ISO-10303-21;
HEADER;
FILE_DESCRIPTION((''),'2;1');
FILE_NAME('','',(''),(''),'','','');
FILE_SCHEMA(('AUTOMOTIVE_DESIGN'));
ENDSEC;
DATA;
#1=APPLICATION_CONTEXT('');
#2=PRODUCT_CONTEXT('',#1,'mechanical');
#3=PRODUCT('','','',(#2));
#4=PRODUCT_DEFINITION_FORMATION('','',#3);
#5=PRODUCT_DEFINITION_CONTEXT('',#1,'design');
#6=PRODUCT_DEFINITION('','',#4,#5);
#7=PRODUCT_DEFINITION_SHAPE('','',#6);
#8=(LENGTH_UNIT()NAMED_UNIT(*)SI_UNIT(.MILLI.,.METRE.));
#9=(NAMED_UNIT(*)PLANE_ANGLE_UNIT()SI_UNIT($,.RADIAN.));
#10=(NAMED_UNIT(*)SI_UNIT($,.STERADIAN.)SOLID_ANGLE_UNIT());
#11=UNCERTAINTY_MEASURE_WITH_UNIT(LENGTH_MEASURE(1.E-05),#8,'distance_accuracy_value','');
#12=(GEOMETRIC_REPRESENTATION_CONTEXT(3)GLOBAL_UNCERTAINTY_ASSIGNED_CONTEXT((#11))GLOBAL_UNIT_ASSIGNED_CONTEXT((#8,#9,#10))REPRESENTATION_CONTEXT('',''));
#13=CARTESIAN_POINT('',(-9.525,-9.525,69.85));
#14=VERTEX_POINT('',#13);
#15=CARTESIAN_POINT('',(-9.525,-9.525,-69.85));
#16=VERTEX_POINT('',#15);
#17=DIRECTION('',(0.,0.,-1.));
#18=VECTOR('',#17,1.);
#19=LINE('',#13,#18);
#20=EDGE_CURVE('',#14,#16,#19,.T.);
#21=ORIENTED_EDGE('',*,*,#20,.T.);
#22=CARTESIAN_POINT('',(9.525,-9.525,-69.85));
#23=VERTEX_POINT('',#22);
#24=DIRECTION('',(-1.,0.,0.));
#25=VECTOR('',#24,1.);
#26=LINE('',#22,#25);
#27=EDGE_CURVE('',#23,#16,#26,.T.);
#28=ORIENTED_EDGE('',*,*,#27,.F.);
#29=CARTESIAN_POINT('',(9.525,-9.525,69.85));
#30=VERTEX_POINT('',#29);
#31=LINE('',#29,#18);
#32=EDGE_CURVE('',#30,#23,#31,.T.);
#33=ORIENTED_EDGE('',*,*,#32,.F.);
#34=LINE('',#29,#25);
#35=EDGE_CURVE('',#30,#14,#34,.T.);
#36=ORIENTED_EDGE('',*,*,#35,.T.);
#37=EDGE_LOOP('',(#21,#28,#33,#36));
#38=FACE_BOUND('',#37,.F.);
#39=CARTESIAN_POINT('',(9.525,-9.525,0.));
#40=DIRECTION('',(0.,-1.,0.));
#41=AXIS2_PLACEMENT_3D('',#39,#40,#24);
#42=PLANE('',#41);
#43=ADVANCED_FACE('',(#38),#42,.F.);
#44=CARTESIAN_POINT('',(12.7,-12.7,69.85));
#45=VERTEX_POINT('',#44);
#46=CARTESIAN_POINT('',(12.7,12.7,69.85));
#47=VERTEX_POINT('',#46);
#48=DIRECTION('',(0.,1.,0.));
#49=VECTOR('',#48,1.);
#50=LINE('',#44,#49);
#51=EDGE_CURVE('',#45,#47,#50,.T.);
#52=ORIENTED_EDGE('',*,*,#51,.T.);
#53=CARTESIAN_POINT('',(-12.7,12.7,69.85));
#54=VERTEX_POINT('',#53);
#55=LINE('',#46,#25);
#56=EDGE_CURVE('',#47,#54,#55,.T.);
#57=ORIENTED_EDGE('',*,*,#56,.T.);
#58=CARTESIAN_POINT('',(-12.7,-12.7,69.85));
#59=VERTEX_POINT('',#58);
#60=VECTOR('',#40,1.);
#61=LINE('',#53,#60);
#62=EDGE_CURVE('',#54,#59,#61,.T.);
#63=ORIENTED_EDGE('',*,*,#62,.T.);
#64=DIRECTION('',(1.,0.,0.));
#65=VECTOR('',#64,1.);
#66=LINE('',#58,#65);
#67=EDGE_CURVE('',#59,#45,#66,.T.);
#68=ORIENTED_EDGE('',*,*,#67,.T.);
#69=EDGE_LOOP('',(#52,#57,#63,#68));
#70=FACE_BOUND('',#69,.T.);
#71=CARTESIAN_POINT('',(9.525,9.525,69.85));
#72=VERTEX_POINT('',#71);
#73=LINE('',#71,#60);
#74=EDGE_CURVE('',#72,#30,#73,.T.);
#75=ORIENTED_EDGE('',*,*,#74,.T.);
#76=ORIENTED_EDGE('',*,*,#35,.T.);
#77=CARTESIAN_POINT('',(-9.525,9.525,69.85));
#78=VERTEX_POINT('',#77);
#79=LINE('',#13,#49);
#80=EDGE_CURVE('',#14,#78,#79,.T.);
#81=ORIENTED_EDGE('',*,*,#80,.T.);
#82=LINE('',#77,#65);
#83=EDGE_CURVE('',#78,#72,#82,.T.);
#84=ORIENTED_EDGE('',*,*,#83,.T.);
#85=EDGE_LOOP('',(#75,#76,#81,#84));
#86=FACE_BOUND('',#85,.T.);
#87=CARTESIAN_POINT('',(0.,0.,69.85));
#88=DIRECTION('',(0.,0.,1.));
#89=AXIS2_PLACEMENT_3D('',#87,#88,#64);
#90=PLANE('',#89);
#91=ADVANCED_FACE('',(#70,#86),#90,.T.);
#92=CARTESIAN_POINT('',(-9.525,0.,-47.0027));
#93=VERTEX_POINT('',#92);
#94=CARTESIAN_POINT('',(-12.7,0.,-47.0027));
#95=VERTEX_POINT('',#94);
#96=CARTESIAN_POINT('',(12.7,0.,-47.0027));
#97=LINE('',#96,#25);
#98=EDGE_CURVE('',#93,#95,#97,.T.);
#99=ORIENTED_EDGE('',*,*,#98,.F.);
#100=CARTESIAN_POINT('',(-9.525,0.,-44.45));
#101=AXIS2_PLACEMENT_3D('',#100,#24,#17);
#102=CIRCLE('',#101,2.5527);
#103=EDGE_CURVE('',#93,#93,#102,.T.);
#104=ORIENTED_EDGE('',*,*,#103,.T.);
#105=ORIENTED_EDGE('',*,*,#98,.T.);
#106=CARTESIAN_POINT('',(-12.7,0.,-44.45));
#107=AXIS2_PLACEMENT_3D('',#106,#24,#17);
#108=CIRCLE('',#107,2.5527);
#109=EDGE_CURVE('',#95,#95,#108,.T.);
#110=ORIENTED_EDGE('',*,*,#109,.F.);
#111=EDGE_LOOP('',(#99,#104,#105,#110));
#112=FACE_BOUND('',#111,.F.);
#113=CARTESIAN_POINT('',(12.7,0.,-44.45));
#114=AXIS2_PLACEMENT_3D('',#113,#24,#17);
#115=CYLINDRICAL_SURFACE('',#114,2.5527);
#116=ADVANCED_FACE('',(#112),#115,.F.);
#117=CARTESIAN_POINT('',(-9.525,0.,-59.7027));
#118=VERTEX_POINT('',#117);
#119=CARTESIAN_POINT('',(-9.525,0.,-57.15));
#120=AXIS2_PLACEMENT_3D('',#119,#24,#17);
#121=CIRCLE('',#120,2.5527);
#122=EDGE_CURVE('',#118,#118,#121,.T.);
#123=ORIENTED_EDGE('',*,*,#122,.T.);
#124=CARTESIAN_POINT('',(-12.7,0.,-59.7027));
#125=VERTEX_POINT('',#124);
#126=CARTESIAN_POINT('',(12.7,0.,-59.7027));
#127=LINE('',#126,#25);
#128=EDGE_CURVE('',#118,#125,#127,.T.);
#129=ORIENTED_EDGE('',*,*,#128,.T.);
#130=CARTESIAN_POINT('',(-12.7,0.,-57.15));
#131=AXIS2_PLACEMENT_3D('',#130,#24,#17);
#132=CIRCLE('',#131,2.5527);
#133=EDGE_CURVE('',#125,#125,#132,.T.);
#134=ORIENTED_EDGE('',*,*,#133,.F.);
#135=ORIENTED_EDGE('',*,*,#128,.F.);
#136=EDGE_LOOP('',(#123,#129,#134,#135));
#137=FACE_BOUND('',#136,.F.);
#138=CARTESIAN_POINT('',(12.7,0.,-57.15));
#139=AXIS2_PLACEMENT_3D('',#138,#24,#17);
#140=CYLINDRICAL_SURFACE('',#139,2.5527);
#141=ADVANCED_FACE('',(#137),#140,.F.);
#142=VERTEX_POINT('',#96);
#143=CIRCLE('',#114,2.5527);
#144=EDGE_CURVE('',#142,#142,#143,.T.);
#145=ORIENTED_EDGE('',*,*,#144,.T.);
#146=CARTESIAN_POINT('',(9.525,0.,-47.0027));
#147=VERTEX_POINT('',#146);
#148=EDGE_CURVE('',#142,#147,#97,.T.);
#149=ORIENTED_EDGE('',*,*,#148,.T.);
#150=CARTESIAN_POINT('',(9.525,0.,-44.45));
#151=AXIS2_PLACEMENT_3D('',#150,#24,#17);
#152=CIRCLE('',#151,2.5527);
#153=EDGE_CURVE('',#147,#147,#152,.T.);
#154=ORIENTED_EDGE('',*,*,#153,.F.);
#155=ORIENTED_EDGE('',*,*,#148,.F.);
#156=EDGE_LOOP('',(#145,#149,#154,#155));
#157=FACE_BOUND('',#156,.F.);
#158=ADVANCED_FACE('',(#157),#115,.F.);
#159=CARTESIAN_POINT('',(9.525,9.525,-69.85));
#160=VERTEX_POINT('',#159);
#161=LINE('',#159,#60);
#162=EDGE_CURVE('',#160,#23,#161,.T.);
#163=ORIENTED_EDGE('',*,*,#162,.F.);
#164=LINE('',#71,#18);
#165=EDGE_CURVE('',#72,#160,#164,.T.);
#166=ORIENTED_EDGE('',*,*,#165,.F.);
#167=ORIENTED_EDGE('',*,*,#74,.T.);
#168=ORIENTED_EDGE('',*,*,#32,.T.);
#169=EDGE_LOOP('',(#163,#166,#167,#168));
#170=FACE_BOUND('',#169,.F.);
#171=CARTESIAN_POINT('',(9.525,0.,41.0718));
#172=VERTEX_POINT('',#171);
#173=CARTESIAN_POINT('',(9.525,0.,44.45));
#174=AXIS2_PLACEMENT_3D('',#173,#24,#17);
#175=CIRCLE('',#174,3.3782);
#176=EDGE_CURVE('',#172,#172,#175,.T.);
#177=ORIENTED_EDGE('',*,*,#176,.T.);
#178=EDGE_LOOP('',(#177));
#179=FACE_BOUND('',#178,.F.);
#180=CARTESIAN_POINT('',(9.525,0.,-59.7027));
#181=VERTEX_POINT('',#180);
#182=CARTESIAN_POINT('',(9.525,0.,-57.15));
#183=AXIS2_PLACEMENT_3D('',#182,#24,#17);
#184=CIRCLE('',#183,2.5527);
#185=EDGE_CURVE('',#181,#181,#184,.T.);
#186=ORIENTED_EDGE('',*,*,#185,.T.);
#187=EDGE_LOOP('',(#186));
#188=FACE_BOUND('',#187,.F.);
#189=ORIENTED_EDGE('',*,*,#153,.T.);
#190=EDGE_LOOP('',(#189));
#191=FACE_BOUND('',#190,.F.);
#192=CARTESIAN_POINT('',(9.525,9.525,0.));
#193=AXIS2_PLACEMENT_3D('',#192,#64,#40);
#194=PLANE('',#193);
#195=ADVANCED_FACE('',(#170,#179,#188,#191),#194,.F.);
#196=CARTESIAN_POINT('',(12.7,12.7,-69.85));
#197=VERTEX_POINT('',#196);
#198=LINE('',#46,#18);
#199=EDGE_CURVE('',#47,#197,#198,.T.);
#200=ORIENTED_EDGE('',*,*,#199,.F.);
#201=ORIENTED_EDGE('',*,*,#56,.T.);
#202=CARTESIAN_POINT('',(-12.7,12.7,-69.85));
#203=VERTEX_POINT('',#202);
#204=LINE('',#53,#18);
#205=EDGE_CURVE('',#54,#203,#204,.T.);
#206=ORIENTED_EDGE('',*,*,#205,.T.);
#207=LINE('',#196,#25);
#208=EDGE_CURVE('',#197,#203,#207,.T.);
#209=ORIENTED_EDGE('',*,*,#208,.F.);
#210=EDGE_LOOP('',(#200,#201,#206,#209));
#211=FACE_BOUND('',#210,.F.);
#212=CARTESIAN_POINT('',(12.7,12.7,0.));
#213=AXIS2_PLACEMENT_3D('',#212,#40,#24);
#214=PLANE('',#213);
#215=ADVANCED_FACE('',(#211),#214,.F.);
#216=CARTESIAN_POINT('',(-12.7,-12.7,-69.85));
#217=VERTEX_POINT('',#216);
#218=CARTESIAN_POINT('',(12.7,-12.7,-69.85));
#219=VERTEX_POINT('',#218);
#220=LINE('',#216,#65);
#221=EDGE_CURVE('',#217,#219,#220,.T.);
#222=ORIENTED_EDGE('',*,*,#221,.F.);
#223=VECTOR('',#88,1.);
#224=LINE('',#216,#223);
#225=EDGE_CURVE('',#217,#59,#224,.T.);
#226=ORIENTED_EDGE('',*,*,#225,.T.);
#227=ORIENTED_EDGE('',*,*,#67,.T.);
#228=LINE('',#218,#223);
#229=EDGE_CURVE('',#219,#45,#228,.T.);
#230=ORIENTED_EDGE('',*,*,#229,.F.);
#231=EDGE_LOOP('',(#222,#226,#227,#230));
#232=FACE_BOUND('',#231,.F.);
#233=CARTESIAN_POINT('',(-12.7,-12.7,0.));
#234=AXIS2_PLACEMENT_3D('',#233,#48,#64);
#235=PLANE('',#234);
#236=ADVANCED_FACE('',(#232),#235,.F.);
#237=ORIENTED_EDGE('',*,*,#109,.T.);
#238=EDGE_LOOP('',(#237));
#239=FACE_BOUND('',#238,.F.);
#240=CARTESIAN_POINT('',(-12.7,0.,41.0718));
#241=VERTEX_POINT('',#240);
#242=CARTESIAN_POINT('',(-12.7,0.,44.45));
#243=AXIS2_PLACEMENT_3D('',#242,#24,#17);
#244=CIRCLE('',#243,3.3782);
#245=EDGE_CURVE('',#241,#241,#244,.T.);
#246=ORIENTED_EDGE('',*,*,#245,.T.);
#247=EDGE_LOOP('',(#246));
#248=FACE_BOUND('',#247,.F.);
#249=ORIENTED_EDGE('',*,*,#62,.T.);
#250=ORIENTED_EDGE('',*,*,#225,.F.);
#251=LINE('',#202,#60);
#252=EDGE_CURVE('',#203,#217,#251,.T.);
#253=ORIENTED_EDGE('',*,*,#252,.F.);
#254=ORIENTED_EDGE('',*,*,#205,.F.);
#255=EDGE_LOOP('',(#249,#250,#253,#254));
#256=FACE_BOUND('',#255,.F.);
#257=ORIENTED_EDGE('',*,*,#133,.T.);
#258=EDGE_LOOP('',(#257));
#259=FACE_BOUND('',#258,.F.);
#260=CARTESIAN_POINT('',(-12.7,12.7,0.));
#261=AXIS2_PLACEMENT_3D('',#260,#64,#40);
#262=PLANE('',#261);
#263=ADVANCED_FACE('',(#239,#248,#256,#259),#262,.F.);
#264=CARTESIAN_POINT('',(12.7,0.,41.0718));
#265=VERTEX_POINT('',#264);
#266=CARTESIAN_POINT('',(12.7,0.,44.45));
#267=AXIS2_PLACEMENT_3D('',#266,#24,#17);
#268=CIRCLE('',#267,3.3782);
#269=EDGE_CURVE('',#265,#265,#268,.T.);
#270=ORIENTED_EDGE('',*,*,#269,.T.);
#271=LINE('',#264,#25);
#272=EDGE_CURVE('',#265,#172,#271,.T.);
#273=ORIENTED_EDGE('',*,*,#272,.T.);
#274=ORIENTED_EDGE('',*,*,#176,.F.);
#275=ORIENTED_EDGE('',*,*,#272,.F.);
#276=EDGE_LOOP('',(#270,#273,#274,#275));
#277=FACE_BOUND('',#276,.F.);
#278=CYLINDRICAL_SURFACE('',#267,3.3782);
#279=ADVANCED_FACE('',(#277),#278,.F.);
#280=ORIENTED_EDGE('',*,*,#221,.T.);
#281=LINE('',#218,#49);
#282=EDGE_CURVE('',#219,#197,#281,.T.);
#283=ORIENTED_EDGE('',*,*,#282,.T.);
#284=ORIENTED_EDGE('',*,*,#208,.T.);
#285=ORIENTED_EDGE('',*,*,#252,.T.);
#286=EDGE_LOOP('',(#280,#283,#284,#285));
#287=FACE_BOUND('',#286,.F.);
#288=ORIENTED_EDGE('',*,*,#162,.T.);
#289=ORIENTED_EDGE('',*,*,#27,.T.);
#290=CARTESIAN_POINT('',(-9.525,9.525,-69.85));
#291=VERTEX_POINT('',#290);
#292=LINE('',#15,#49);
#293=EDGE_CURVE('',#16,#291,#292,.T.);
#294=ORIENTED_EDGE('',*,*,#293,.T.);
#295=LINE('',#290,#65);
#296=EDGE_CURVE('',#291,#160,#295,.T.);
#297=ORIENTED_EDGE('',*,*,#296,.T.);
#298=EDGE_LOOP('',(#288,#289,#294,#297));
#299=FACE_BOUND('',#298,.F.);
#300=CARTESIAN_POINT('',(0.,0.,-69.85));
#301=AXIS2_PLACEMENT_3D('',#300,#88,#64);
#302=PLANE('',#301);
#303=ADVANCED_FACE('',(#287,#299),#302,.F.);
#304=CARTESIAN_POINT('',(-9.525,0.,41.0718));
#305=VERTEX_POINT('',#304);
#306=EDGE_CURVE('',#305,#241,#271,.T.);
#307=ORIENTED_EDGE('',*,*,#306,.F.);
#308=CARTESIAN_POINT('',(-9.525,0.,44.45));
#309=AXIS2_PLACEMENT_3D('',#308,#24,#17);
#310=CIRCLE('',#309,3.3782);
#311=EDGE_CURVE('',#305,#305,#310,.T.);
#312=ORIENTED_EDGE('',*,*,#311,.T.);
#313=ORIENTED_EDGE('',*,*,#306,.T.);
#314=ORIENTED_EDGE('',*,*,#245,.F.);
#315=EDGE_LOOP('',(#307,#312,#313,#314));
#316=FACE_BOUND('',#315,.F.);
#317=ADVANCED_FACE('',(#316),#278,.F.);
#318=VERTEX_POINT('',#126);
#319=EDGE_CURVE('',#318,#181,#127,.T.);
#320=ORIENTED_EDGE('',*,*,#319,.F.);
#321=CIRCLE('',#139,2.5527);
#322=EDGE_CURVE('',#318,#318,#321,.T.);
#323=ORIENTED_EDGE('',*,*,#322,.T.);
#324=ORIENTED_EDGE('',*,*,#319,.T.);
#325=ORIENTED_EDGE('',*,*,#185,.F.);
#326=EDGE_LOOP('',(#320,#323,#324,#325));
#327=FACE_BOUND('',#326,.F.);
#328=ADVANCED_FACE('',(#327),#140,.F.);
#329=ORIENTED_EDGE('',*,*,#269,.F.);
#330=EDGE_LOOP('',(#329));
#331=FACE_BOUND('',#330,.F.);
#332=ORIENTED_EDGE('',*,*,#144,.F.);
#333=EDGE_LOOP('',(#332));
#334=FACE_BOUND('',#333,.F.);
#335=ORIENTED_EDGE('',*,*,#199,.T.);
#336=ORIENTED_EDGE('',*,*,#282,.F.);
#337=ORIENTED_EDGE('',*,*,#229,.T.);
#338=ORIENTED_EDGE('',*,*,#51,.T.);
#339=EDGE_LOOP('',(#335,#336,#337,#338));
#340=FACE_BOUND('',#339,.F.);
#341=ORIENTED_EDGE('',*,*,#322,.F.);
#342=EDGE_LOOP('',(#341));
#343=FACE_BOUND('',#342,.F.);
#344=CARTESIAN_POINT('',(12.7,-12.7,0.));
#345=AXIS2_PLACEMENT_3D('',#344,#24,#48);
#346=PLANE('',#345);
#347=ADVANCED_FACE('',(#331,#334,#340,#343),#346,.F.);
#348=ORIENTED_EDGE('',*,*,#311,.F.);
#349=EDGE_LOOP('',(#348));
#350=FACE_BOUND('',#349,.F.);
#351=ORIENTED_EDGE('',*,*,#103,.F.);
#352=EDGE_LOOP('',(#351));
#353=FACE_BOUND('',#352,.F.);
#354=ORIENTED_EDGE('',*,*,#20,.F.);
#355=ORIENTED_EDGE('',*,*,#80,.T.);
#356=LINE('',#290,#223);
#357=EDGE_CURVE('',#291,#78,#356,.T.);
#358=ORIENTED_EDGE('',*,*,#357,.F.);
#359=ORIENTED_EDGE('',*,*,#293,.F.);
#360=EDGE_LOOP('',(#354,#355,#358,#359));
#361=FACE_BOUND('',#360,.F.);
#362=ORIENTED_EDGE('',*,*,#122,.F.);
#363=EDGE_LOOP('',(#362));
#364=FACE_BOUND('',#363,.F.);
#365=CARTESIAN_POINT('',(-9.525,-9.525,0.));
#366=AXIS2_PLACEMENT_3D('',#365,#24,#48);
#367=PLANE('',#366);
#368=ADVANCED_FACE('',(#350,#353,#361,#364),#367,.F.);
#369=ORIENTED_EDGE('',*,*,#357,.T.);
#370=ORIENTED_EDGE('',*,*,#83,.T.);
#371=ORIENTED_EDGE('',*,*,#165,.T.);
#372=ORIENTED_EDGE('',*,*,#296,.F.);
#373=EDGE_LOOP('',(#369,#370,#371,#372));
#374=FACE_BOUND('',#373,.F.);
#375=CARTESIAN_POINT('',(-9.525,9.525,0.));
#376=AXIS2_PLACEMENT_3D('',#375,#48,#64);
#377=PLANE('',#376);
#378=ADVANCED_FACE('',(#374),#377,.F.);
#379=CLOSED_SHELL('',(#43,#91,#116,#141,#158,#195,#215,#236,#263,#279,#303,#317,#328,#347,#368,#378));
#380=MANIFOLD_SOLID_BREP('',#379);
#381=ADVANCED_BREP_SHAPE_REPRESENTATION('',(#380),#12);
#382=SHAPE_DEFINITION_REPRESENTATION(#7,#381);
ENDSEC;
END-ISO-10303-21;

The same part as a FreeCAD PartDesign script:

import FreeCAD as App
import Part
import Sketcher
from FreeCAD import Vector
Q = App.Units.Quantity


def add_polygon(sketch, points):
    """Adds a closed chain of lines whose ends are joined by coincident constraints."""
    first, n = sketch.GeometryCount, len(points)
    for a, b in zip(points, points[1:] + points[:1]):
        sketch.addGeometry(Part.LineSegment(App.Vector(*a, 0), App.Vector(*b, 0)), False)
    for i in range(n):
        sketch.addConstraint(Sketcher.Constraint("Coincident", first + i, 2, first + (i + 1) % n, 1))

doc = App.newDocument("Part")
params = doc.addObject("Spreadsheet::Sheet", "Params")
for row, (alias, value) in enumerate([
    ("sketch1_width", "1 in"),
    ("pad1_length", "5.5 in"),
    ("sketch2_diameter", "0.266 in"),
    ("hole_diameter", "0.266 in"),
    ("sketch3_diameter", "0.201 in"),
    ("hole2_diameter", "0.201 in"),
], start=1):
    params.set(f"A{row}", alias)
    params.set(f"B{row}", "=" + value)
    params.setAlias(f"B{row}", alias)

body = doc.addObject("PartDesign::Body", "Body")

# Sketch on XY plane
sketch1 = doc.addObject("Sketcher::SketchObject", "Sketch")
body.addObject(sketch1)
sketch1.AttachmentSupport = (doc.XY_Plane, [""])
sketch1.MapMode = "FlatFace"
add_polygon(sketch1, [(-13, 13), (-13, -13), (13, -13), (13, 13)])  # lines 0-3
add_polygon(sketch1, [(-10, -10), (-10, 10), (10, 10), (10, -10)])  # lines 4-7
sketch1.addConstraint([
    Sketcher.Constraint("Vertical", 0),
    Sketcher.Constraint("Horizontal", 1),
    Sketcher.Constraint("Vertical", 2),
    Sketcher.Constraint("Horizontal", 3),
    Sketcher.Constraint("Vertical", 4),
    Sketcher.Constraint("Horizontal", 5),
    Sketcher.Constraint("Vertical", 6),
    Sketcher.Constraint("Horizontal", 7),
    Sketcher.Constraint("Symmetric", 0, 2, 2, 2, -1, 1),
    Sketcher.Constraint("Symmetric", 4, 2, 6, 2, -1, 1),
    Sketcher.Constraint("Equal", 3, 0),
    Sketcher.Constraint("Equal", 7, 4),
    Sketcher.Constraint("DistanceX", 1, 1, 1, 2, Q("1 in")),
    Sketcher.Constraint("DistanceX", 3, 2, 4, 2, Q("0.125 in")),
])
sketch1.setExpression("Constraints[20]", "Params.sketch1_width")
pad1 = doc.addObject("PartDesign::Pad", "Pad")
body.addObject(pad1)
pad1.Profile = sketch1
pad1.setExpression("Length", "Params.pad1_length")
pad1.Midplane = True

# Sketch on YZ plane
sketch2 = doc.addObject("Sketcher::SketchObject", "Sketch001")
body.addObject(sketch2)
sketch2.AttachmentSupport = (doc.YZ_Plane, [""])
sketch2.MapMode = "FlatFace"
sketch2.AttachmentOffset = App.Placement(Vector(0, 0, 0.5 * 25.4), App.Rotation())
sketch2.addGeometry(Part.Circle(Vector(0, 44.5, 0), Vector(0, 0, 1), 3.4), False)
sketch2.addConstraint([
    Sketcher.Constraint("PointOnObject", 0, 3, -2),
    Sketcher.Constraint("Diameter", 0, Q("0.266 in")),
    Sketcher.Constraint("DistanceY", -1, 1, 0, 3, Q("1.75 in")),
])
sketch2.setExpression("Constraints[1]", "Params.sketch2_diameter")
doc.recompute()
hole = doc.addObject("PartDesign::Hole", "Hole")
body.addObject(hole)
hole.Profile = sketch2
hole.ThreadType = "None"
hole.setExpression("Diameter", "Params.hole_diameter")
hole.DepthType = "ThroughAll"

# Sketch on YZ plane
sketch3 = doc.addObject("Sketcher::SketchObject", "Sketch002")
body.addObject(sketch3)
sketch3.AttachmentSupport = (doc.YZ_Plane, [""])
sketch3.MapMode = "FlatFace"
sketch3.AttachmentOffset = App.Placement(Vector(0, 0, 0.5 * 25.4), App.Rotation())
sketch3.addGeometry([
    Part.Circle(Vector(0, -57.1, 0), Vector(0, 0, 1), 2.6),
    Part.Circle(Vector(0, -44.5, 0), Vector(0, 0, 1), 2.6),
], False)
sketch3.addConstraint([
    Sketcher.Constraint("Equal", 0, 1),
    Sketcher.Constraint("PointOnObject", 0, 3, -2),
    Sketcher.Constraint("PointOnObject", 1, 3, -2),
    Sketcher.Constraint("Diameter", 0, Q("0.201 in")),
    Sketcher.Constraint("DistanceY", 0, 3, 1, 3, Q("0.5 in")),
    Sketcher.Constraint("DistanceY", 0, 3, -1, 1, Q("2.25 in")),
])
sketch3.setExpression("Constraints[3]", "Params.sketch3_diameter")
doc.recompute()
hole2 = doc.addObject("PartDesign::Hole", "Hole001")
body.addObject(hole2)
hole2.Profile = sketch3
hole2.ThreadType = "None"
hole2.setExpression("Diameter", "Params.hole2_diameter")
hole2.DepthType = "ThroughAll"

doc.recompute()
